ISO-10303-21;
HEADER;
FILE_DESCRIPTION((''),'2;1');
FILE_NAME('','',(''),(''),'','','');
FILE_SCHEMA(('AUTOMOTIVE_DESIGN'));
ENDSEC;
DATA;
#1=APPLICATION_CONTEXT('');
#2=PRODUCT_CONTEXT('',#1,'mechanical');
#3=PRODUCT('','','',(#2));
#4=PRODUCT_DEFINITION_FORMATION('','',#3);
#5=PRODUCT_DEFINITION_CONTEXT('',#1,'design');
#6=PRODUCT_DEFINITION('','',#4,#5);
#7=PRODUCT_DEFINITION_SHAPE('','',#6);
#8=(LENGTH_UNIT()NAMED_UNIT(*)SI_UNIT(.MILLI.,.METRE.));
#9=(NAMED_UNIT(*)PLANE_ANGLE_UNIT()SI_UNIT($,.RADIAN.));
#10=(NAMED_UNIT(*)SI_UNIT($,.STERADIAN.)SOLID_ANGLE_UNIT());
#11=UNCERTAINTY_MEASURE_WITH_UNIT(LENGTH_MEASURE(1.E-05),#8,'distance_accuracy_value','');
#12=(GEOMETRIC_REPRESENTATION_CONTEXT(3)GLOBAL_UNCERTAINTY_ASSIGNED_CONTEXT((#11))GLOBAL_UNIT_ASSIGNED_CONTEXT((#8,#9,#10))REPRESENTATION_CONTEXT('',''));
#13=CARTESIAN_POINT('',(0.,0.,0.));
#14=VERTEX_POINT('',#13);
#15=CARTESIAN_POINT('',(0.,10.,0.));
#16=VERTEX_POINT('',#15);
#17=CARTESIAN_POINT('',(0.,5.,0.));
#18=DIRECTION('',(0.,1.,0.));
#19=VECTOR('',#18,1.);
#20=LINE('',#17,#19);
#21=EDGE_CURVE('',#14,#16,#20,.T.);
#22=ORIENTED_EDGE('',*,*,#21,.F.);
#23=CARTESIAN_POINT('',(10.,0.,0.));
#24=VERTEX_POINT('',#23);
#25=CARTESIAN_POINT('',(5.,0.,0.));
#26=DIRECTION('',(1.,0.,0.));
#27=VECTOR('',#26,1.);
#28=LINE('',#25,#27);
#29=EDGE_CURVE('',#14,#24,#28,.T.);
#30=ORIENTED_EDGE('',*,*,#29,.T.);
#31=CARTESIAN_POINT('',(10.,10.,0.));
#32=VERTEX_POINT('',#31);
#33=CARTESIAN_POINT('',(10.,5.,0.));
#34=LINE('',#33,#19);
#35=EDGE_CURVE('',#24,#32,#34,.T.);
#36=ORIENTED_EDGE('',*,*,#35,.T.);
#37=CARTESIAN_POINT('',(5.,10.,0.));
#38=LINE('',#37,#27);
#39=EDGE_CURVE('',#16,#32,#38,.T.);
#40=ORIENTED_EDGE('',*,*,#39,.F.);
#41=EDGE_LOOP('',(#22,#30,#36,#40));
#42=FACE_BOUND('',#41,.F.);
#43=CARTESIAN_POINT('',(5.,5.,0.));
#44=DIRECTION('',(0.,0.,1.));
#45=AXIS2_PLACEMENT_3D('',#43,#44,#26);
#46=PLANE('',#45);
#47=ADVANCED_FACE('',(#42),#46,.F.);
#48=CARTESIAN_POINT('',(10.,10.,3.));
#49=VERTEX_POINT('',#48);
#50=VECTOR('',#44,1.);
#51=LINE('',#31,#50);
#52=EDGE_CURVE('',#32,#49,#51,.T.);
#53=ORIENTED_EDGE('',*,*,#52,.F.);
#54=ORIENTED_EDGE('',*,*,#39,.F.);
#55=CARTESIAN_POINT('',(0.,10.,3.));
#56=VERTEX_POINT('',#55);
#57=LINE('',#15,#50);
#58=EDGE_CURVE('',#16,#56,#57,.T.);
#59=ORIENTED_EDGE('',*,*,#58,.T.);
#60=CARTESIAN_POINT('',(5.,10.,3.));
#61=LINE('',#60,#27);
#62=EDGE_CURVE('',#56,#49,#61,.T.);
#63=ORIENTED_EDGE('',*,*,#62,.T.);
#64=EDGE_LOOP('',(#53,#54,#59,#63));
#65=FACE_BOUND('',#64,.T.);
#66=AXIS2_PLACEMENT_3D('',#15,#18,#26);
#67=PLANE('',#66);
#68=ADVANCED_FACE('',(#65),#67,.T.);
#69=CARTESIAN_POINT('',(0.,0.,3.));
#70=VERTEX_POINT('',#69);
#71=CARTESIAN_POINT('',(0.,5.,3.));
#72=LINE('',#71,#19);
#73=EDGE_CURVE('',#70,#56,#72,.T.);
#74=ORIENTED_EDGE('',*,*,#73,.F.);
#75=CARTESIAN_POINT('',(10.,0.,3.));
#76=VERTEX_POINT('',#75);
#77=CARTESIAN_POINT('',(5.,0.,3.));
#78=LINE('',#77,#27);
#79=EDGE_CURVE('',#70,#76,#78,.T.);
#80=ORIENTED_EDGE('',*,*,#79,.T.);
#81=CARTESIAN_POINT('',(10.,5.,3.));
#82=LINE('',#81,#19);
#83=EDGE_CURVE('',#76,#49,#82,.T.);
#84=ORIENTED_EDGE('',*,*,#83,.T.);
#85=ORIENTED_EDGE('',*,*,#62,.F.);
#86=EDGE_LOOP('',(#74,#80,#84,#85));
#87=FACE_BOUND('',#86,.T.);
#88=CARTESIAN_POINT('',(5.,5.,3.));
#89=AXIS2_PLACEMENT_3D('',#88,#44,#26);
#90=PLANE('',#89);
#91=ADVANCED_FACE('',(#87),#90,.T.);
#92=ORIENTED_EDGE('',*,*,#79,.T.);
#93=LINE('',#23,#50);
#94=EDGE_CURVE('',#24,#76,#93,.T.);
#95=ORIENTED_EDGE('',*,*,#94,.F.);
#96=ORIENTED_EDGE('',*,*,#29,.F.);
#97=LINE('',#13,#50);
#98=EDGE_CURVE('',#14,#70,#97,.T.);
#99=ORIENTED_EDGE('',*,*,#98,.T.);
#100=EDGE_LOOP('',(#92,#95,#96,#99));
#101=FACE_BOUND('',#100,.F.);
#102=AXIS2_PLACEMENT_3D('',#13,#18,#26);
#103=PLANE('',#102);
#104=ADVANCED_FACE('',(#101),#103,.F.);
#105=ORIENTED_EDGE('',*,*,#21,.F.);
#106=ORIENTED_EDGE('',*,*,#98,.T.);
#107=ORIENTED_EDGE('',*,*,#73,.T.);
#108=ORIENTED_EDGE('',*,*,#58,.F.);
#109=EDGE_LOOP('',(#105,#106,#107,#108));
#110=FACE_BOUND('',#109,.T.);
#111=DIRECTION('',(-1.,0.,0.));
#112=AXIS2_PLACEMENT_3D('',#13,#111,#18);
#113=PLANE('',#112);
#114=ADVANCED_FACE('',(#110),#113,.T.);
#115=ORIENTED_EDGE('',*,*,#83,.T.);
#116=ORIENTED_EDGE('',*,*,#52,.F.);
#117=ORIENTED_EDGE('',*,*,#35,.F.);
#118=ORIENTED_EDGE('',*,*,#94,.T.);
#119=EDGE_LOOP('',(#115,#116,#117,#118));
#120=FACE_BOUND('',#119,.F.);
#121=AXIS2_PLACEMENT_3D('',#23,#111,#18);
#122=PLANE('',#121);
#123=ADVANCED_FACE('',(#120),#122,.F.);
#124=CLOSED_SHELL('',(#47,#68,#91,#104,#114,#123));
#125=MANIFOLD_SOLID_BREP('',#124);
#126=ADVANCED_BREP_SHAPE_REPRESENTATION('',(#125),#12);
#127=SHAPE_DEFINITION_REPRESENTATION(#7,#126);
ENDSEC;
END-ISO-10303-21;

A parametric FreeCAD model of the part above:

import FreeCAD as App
import Part
import Sketcher


def add_polygon(sketch, points):
    """Adds a closed chain of lines whose ends are joined by coincident constraints."""
    first, n = sketch.GeometryCount, len(points)
    for a, b in zip(points, points[1:] + points[:1]):
        sketch.addGeometry(Part.LineSegment(App.Vector(*a, 0), App.Vector(*b, 0)), False)
    for i in range(n):
        sketch.addConstraint(Sketcher.Constraint("Coincident", first + i, 2, first + (i + 1) % n, 1))

doc = App.newDocument("Part")
body = doc.addObject("PartDesign::Body", "Body")

sketch1 = body.newObject("Sketcher::SketchObject", "Sketch")
sketch1.AttachmentSupport = (doc.getObject("XY_Plane"), [""])
sketch1.MapMode = "FlatFace"
add_polygon(sketch1, [(0, 10), (0, 0), (10, 0), (10, 10)])
sketch1.addConstraint([
    Sketcher.Constraint("Vertical", 0),
    Sketcher.Constraint("Horizontal", 1),
    Sketcher.Constraint("Vertical", 2),
    Sketcher.Constraint("Horizontal", 3),
    Sketcher.Constraint("Coincident", 0, 2, -1, 1),
    Sketcher.Constraint("Equal", 3, 0),
    Sketcher.Constraint("DistanceX", 1, 1, 1, 2, 10.0),
])
pad1 = body.newObject("PartDesign::Pad", "Pad")
pad1.Profile = sketch1
pad1.Length = 3

doc.recompute()
